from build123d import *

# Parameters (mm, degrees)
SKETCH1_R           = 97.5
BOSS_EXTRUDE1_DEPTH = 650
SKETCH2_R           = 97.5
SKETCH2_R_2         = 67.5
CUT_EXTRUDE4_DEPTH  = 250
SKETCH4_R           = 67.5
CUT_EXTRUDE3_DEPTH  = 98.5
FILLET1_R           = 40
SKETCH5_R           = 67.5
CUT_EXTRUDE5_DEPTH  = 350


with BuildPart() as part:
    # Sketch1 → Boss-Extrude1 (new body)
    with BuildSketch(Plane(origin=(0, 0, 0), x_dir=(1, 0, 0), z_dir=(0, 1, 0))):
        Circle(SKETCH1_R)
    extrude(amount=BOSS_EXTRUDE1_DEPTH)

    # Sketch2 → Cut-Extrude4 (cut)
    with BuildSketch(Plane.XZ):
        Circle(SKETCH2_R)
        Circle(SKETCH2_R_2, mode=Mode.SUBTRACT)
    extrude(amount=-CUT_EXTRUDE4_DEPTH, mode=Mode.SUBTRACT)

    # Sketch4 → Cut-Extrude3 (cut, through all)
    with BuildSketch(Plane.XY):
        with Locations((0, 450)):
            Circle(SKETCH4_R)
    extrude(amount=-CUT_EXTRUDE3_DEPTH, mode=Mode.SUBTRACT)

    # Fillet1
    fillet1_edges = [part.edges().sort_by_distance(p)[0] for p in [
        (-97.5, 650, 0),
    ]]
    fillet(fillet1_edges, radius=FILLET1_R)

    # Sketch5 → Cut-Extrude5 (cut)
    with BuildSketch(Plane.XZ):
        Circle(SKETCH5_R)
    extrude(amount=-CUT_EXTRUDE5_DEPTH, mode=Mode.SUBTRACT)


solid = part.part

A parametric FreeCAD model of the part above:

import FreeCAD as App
import Part
import Sketcher

V = App.Vector
Q = App.Units.Quantity


def edges_at(feature, points):
    """Names of the edges that pass closest to the given points."""
    edges = feature.Shape.Edges
    near = lambda p: min(range(len(edges)), key=lambda i: edges[i].distToShape(Part.Vertex(*p))[0])
    return sorted({f"Edge{near(p) + 1}" for p in points})

doc = App.newDocument("Part")
body = doc.addObject("PartDesign::Body", "Body")

sketch1 = doc.addObject("Sketcher::SketchObject", "Sketch")
body.addObject(sketch1)
sketch1.AttachmentSupport = (doc.XZ_Plane, [""])
sketch1.MapMode = "FlatFace"
sketch1.addGeometry(Part.Circle(V(0, 0, 0), V(0, 0, 1), 97.5), False)
sketch1.addConstraint([
    Sketcher.Constraint("Coincident", 0, 3, -1, 1),
    Sketcher.Constraint("Diameter", 0, Q("195 mm")),
])
pad1 = doc.addObject("PartDesign::Pad", "Pad")
body.addObject(pad1)
pad1.Profile = sketch1
pad1.Length = 650
pad1.Reversed = True

sketch2 = doc.addObject("Sketcher::SketchObject", "Sketch001")
body.addObject(sketch2)
sketch2.AttachmentSupport = (doc.XZ_Plane, [""])
sketch2.MapMode = "FlatFace"
sketch2.addGeometry([
    Part.Circle(V(0, 0, 0), V(0, 0, 1), 97.5),
    Part.Circle(V(0, 0, 0), V(0, 0, 1), 67.5),
], False)
sketch2.addConstraint([
    Sketcher.Constraint("Coincident", 0, 3, -1, 1),
    Sketcher.Constraint("Coincident", 1, 3, -1, 1),
    Sketcher.Constraint("Diameter", 0, Q("195 mm")),
    Sketcher.Constraint("Diameter", 1, Q("135 mm")),
])
pocket1 = doc.addObject("PartDesign::Pocket", "Pocket")
body.addObject(pocket1)
pocket1.Profile = sketch2
pocket1.Length = 250

sketch3 = doc.addObject("Sketcher::SketchObject", "Sketch002")
body.addObject(sketch3)
sketch3.AttachmentSupport = (doc.XY_Plane, [""])
sketch3.MapMode = "FlatFace"
sketch3.addGeometry(Part.Circle(V(0, 450, 0), V(0, 0, 1), 67.5), False)
sketch3.addConstraint([
    Sketcher.Constraint("PointOnObject", 0, 3, -2),
    Sketcher.Constraint("Diameter", 0, Q("135 mm")),
    Sketcher.Constraint("DistanceY", -1, 1, 0, 3, Q("450 mm")),
])
pocket2 = doc.addObject("PartDesign::Pocket", "Pocket001")
body.addObject(pocket2)
pocket2.Profile = sketch3
pocket2.Type = "ThroughAll"
doc.recompute()

fillet = doc.addObject("PartDesign::Fillet", "Fillet")
body.addObject(fillet)
fillet.Base = (pocket2, edges_at(pocket2, [(-97.5, 650, 0)]))
fillet.Radius = 40

sketch4 = doc.addObject("Sketcher::SketchObject", "Sketch003")
body.addObject(sketch4)
sketch4.AttachmentSupport = (doc.XZ_Plane, [""])
sketch4.MapMode = "FlatFace"
sketch4.addGeometry(Part.Circle(V(0, 0, 0), V(0, 0, 1), 67.5), False)
sketch4.addConstraint([
    Sketcher.Constraint("Coincident", 0, 3, -1, 1),
    Sketcher.Constraint("Diameter", 0, Q("135 mm")),
])
pocket3 = doc.addObject("PartDesign::Pocket", "Pocket002")
body.addObject(pocket3)
pocket3.Profile = sketch4
pocket3.Length = 350

doc.recompute()
